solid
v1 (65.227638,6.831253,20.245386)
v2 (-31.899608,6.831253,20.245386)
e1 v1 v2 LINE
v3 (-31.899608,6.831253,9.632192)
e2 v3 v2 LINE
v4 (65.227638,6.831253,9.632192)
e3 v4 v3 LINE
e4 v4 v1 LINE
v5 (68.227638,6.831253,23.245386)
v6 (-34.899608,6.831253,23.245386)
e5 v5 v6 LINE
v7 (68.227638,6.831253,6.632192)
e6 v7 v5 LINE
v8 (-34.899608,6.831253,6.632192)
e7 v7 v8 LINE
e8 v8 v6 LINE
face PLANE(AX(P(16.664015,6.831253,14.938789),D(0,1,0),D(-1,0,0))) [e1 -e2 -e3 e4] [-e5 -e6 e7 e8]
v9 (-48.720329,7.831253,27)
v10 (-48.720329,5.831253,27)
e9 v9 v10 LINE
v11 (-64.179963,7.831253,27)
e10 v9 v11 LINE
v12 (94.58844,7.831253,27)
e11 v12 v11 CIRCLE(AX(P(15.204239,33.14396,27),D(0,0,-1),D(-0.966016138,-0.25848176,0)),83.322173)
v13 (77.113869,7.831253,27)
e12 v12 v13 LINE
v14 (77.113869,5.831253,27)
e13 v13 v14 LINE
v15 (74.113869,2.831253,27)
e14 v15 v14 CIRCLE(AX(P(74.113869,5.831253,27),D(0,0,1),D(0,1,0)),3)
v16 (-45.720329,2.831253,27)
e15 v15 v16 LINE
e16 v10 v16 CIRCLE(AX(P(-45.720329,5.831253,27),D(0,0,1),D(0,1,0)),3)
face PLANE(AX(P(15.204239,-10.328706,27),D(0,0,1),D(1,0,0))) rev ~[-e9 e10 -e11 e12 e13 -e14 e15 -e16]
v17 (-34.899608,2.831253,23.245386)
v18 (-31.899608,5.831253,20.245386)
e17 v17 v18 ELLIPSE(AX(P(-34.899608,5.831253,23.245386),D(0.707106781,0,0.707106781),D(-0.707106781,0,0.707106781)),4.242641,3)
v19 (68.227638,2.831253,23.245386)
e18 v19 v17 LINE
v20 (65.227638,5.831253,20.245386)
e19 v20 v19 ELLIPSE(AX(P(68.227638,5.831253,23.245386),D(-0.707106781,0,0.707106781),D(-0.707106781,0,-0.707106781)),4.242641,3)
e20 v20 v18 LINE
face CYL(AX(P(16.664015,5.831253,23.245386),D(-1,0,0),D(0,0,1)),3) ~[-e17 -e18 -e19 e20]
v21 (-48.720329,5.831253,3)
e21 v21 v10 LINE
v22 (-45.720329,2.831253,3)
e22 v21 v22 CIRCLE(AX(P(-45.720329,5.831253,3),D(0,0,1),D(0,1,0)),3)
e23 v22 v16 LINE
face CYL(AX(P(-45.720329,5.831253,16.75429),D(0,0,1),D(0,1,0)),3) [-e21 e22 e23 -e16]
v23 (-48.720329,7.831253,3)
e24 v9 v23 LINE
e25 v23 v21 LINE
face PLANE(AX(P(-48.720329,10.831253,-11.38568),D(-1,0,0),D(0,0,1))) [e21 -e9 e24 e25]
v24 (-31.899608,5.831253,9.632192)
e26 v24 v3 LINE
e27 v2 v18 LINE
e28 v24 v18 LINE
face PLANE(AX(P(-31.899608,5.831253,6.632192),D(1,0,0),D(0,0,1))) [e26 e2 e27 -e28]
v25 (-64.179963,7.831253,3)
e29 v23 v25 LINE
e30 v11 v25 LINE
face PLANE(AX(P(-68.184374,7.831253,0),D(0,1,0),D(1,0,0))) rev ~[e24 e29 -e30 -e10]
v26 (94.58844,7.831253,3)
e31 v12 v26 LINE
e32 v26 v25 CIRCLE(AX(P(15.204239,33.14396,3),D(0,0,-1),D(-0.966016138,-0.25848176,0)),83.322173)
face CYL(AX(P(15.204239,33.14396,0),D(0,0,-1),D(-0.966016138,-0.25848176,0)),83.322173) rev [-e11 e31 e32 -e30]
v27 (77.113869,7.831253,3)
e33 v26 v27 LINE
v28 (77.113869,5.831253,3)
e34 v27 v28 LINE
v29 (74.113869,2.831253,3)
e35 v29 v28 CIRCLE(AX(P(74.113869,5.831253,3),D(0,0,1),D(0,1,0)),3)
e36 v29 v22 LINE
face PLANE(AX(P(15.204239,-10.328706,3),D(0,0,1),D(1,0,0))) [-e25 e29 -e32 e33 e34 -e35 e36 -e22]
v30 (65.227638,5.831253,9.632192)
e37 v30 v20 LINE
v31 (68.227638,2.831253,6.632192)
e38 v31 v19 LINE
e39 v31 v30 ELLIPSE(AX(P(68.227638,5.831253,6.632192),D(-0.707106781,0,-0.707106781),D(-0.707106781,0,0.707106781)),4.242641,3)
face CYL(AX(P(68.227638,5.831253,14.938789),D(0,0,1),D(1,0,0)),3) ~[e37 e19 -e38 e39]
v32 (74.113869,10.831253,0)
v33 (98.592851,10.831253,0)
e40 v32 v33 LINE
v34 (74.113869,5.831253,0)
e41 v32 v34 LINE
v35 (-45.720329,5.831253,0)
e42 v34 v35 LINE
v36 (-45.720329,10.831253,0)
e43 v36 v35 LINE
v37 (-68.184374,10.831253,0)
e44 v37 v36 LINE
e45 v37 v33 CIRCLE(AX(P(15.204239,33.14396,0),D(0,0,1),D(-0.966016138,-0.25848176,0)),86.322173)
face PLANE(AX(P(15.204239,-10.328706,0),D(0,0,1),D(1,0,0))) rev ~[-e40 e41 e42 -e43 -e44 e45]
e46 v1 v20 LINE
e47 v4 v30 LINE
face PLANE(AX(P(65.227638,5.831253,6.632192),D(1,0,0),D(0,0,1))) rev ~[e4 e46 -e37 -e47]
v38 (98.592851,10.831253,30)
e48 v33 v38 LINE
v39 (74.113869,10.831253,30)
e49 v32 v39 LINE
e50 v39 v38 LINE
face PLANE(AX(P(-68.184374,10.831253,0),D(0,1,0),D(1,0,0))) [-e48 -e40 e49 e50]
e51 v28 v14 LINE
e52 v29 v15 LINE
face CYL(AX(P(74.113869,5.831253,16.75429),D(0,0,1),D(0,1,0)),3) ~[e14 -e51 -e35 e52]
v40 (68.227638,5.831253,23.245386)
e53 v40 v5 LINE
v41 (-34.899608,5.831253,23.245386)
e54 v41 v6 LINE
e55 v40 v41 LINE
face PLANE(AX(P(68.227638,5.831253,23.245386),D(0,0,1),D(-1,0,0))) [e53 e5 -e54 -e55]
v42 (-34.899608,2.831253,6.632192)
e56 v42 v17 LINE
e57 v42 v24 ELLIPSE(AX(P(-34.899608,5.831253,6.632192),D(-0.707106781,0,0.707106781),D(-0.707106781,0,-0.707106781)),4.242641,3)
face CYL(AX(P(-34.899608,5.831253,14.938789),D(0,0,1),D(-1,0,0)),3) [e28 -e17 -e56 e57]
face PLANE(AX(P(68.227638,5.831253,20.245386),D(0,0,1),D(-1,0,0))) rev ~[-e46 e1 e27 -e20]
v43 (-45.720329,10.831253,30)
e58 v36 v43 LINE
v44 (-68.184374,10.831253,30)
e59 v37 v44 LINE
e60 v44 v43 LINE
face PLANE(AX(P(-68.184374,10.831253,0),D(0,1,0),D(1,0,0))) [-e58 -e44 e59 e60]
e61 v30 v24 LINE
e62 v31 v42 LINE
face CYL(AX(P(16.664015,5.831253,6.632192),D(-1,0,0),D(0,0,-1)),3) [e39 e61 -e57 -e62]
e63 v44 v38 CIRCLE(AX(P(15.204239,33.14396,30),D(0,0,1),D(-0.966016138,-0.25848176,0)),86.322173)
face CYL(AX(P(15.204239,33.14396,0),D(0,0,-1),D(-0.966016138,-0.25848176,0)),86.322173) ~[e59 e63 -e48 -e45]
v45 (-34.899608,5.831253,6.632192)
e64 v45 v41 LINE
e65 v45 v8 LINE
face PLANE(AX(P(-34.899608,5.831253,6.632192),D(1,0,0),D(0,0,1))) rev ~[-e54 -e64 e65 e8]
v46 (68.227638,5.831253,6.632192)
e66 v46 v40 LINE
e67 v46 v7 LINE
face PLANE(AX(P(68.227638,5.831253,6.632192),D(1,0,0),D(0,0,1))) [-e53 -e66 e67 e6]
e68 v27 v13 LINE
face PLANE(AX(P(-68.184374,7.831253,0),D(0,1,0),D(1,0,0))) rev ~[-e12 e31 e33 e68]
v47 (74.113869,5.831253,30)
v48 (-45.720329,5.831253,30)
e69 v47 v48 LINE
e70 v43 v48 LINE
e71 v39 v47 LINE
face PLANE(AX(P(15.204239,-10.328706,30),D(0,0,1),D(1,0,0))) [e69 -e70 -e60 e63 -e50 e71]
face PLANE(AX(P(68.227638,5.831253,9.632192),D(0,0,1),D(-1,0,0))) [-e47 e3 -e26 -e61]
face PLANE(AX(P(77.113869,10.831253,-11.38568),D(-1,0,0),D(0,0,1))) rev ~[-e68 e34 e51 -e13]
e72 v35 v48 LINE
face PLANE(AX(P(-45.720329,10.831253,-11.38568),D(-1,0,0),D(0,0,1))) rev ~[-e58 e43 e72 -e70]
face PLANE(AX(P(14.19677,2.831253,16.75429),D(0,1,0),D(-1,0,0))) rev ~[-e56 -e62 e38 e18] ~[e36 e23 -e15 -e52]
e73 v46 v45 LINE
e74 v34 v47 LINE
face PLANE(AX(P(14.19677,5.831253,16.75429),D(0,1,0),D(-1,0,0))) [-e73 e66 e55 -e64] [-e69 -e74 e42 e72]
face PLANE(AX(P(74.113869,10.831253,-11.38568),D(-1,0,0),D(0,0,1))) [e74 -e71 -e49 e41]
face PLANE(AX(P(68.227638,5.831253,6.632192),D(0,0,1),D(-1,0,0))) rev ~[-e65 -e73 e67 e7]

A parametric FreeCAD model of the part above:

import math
import FreeCAD as App
import Part
import Sketcher
from FreeCAD import Vector


def faces_at(feature, points):
    """Names of the faces that lie closest to the given points."""
    faces = feature.Shape.Faces
    near = lambda p: min(range(len(faces)), key=lambda i: faces[i].distToShape(Part.Vertex(*p))[0])
    return sorted({f"Face{near(p) + 1}" for p in points})

doc = App.newDocument("Part")
body = doc.addObject("PartDesign::Body", "Body")

sketch1 = body.newObject("Sketcher::SketchObject", "Sketch")
sketch1.AttachmentSupport = (doc.getObject("XY_Plane"), [""])
sketch1.MapMode = "FlatFace"
sketch1.addGeometry(Part.ArcOfCircle(Part.Circle(Vector(15, 33, 0), Vector(0, 0, 1), 86), math.radians(-165), math.radians(-15)), False)
sketch1.addGeometry(Part.LineSegment(Vector(99, 11, 0), Vector(-68, 11, 0)), False)
sketch1.addConstraint(Sketcher.Constraint("Coincident", 0, 1, 1, 2))
sketch1.addConstraint(Sketcher.Constraint("Coincident", 1, 1, 0, 2))
sketch1.addConstraint(Sketcher.Constraint("Horizontal", 1))
sketch1.addConstraint(Sketcher.Constraint("Radius", 0, 86.322173))
sketch1.addConstraint(Sketcher.Constraint("DistanceX", 1, 2, 1, 1, 166.777225))
sketch1.addConstraint(Sketcher.Constraint("DistanceX", -1, 1, 0, 3, 15.204239))
sketch1.addConstraint(Sketcher.Constraint("DistanceY", -1, 1, 0, 3, 33.14396))
pad1 = body.newObject("PartDesign::Pad", "Pad")
pad1.Profile = sketch1
pad1.Length = 30

sketch2 = body.newObject("Sketcher::SketchObject", "Sketch001")
sketch2.AttachmentSupport = (doc.getObject("XZ_Plane"), [""])
sketch2.MapMode = "FlatFace"
sketch2.AttachmentOffset = App.Placement(Vector(0, 0, -10.831253), App.Rotation())
sketch2.addGeometry(Part.LineSegment(Vector(74, 45, 0), Vector(74, -11, 0)), False)
sketch2.addGeometry(Part.LineSegment(Vector(74, -11, 0), Vector(-46, -11, 0)), False)
sketch2.addGeometry(Part.LineSegment(Vector(-46, -11, 0), Vector(-46, 45, 0)), False)
sketch2.addGeometry(Part.LineSegment(Vector(-46, 45, 0), Vector(74, 45, 0)), False)
sketch2.addConstraint(Sketcher.Constraint("Coincident", 0, 2, 1, 1))
sketch2.addConstraint(Sketcher.Constraint("Coincident", 1, 2, 2, 1))
sketch2.addConstraint(Sketcher.Constraint("Coincident", 2, 2, 3, 1))
sketch2.addConstraint(Sketcher.Constraint("Coincident", 3, 2, 0, 1))
sketch2.addConstraint(Sketcher.Constraint("Vertical", 0))
sketch2.addConstraint(Sketcher.Constraint("Horizontal", 1))
sketch2.addConstraint(Sketcher.Constraint("Vertical", 2))
sketch2.addConstraint(Sketcher.Constraint("Horizontal", 3))
sketch2.addConstraint(Sketcher.Constraint("DistanceY", 0, 2, 0, 1, 56.27994))
sketch2.addConstraint(Sketcher.Constraint("DistanceX", 1, 2, 1, 1, 119.834198))
sketch2.addConstraint(Sketcher.Constraint("DistanceX", -1, 1, 0, 2, 74.113869))
sketch2.addConstraint(Sketcher.Constraint("DistanceY", 0, 2, -1, 1, 11.38568))
pocket1 = body.newObject("PartDesign::Pocket", "Pocket")
pocket1.Profile = sketch2
pocket1.Length = 5
pocket1.Reversed = True

sketch3 = body.newObject("Sketcher::SketchObject", "Sketch002")
sketch3.AttachmentSupport = (doc.getObject("XZ_Plane"), [""])
sketch3.MapMode = "FlatFace"
sketch3.AttachmentOffset = App.Placement(Vector(0, 0, -5.831253), App.Rotation())
sketch3.addGeometry(Part.LineSegment(Vector(68, 23, 0), Vector(68, 7, 0)), False)
sketch3.addGeometry(Part.LineSegment(Vector(68, 7, 0), Vector(-35, 7, 0)), False)
sketch3.addGeometry(Part.LineSegment(Vector(-35, 7, 0), Vector(-35, 23, 0)), False)
sketch3.addGeometry(Part.LineSegment(Vector(-35, 23, 0), Vector(68, 23, 0)), False)
sketch3.addConstraint(Sketcher.Constraint("Coincident", 0, 2, 1, 1))
sketch3.addConstraint(Sketcher.Constraint("Coincident", 1, 2, 2, 1))
sketch3.addConstraint(Sketcher.Constraint("Coincident", 2, 2, 3, 1))
sketch3.addConstraint(Sketcher.Constraint("Coincident", 3, 2, 0, 1))
sketch3.addConstraint(Sketcher.Constraint("Vertical", 0))
sketch3.addConstraint(Sketcher.Constraint("Horizontal", 1))
sketch3.addConstraint(Sketcher.Constraint("Vertical", 2))
sketch3.addConstraint(Sketcher.Constraint("Horizontal", 3))
sketch3.addConstraint(Sketcher.Constraint("DistanceX", 1, 2, 1, 1, 103.127247))
sketch3.addConstraint(Sketcher.Constraint("DistanceY", 0, 2, 0, 1, 16.613194))
sketch3.addConstraint(Sketcher.Constraint("DistanceX", -1, 1, 0, 2, 68.227638))
sketch3.addConstraint(Sketcher.Constraint("DistanceY", -1, 1, 0, 2, 6.632192))
pad2 = body.newObject("PartDesign::Pad", "Pad001")
pad2.Profile = sketch3
pad2.Length = 1
pad2.Reversed = True
doc.recompute()

thickness = body.newObject("PartDesign::Thickness", "Thickness")
thickness.Base = (pad2, faces_at(pad2, [(16.664, 6.831, 14.939)]))
thickness.Value = 3
thickness.Reversed = True
thickness.Join = "Arc"

doc.recompute()
